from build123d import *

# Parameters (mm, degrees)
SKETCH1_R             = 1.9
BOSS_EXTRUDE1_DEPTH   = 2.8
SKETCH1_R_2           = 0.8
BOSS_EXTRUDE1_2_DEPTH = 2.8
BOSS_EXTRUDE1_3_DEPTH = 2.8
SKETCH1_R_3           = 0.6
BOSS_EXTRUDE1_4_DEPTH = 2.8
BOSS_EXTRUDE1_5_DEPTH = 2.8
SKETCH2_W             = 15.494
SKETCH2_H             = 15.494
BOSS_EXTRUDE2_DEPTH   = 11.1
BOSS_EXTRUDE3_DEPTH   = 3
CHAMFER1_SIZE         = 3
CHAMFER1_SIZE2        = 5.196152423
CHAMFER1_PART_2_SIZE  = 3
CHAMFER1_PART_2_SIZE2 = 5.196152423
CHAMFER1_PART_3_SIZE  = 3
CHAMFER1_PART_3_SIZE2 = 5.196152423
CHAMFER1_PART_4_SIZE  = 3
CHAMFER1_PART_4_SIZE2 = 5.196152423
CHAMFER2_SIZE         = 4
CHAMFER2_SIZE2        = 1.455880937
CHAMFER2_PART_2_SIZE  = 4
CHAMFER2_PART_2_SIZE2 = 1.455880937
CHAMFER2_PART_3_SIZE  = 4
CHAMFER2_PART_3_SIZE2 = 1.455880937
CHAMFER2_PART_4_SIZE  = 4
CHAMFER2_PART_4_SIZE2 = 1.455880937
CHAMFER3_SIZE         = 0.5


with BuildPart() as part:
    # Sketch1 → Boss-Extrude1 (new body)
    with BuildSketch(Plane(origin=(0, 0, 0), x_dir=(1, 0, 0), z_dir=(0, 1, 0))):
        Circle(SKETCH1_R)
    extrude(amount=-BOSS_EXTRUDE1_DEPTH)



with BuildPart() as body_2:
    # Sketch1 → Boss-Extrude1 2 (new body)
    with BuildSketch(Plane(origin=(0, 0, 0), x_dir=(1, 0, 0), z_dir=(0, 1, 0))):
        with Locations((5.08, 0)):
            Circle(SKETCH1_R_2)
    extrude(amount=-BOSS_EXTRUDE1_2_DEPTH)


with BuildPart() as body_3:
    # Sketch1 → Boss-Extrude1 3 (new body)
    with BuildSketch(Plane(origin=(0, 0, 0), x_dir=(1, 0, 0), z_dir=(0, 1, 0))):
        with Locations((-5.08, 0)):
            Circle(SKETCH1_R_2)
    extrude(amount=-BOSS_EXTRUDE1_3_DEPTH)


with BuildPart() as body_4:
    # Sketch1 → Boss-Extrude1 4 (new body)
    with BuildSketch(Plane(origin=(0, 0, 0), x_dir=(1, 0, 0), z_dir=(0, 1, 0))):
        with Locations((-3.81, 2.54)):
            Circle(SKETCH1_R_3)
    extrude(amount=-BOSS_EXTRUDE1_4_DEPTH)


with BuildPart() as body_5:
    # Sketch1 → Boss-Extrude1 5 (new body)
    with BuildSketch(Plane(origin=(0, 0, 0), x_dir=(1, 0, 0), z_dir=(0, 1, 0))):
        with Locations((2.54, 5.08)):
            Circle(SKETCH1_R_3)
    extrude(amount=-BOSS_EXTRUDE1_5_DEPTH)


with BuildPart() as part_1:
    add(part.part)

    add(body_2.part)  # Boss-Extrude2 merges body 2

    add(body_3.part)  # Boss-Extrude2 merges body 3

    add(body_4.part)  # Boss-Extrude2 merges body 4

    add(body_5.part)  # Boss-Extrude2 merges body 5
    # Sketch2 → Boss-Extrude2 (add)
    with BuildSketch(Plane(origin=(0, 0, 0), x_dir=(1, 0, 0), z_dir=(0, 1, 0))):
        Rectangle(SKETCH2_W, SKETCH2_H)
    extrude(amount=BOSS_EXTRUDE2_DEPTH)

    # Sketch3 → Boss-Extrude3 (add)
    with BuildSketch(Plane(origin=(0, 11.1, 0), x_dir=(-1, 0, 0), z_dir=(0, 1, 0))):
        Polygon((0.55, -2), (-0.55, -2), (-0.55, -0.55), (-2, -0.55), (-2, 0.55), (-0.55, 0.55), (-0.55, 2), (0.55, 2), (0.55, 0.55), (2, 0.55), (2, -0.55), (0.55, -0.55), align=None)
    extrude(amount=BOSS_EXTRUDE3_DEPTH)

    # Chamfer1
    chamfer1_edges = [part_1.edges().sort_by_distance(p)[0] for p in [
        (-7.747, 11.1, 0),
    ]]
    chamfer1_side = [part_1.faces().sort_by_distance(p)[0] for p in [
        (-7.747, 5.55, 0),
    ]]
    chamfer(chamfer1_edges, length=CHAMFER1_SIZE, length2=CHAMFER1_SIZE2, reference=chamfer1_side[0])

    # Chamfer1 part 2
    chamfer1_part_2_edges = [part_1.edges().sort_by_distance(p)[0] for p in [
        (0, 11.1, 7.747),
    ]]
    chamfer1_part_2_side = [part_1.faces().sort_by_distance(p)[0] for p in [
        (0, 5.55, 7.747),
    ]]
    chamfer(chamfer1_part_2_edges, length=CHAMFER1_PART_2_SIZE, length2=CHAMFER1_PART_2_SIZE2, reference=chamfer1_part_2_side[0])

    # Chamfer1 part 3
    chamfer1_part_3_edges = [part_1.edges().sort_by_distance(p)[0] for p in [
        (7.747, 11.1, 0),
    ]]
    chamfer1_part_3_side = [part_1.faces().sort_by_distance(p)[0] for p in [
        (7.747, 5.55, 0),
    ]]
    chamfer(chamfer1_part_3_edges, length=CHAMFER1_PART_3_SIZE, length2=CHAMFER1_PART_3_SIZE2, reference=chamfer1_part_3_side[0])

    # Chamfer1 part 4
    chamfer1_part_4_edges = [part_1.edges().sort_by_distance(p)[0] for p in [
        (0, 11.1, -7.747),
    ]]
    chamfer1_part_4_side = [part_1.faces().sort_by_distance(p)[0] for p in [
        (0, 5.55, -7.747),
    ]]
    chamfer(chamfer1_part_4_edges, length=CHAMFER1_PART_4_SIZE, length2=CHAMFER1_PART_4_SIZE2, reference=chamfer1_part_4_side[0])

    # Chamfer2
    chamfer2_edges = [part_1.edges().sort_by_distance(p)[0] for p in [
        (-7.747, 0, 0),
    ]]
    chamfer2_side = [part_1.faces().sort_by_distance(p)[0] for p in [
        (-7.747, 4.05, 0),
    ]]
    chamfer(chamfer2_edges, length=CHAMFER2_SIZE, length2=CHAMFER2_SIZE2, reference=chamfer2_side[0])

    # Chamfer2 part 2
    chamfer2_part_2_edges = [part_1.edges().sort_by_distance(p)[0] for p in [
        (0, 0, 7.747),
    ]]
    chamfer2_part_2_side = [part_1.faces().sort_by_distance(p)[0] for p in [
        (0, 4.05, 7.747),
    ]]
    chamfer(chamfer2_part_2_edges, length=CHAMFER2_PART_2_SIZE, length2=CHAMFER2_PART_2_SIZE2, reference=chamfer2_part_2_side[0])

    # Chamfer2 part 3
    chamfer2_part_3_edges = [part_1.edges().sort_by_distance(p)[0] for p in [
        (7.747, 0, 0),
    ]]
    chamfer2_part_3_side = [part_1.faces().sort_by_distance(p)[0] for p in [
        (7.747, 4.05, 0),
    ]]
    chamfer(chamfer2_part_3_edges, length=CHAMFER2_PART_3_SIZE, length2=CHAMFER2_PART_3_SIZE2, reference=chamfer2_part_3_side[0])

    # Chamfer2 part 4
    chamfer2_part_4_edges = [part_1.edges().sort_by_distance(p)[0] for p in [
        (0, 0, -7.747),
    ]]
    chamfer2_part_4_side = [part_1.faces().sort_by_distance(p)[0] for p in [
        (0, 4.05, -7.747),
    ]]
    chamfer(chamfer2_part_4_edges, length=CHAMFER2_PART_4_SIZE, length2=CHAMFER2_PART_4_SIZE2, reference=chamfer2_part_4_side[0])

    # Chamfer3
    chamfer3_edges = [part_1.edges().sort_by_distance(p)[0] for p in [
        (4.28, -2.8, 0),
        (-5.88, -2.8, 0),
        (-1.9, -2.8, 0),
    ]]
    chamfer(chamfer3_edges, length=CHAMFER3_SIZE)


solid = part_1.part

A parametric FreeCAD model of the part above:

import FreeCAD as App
import Part
import Sketcher

V = App.Vector


def edges_at(feature, points):
    """Names of the edges that pass closest to the given points."""
    edges = feature.Shape.Edges
    near = lambda p: min(range(len(edges)), key=lambda i: edges[i].distToShape(Part.Vertex(*p))[0])
    return sorted({f"Edge{near(p) + 1}" for p in points})


def add_polygon(sketch, points):
    """Adds a closed chain of lines whose ends are joined by coincident constraints."""
    first, n = sketch.GeometryCount, len(points)
    for a, b in zip(points, points[1:] + points[:1]):
        sketch.addGeometry(Part.LineSegment(App.Vector(*a, 0), App.Vector(*b, 0)), False)
    for i in range(n):
        sketch.addConstraint(Sketcher.Constraint("Coincident", first + i, 2, first + (i + 1) % n, 1))

doc = App.newDocument("Part")
body = doc.addObject("PartDesign::Body", "Body")

sketch1 = doc.addObject("Sketcher::SketchObject", "Sketch")
body.addObject(sketch1)
sketch1.AttachmentSupport = (doc.XZ_Plane, [""])
sketch1.MapMode = "FlatFace"
sketch1.addGeometry(Part.Circle(V(0, 0, 0), V(0, 0, 1), 1.9), False)
sketch1.addConstraint(Sketcher.Constraint("Coincident", 0, 3, -1, 1))
sketch1.addConstraint(Sketcher.Constraint("Diameter", 0, 3.8))
pad1 = doc.addObject("PartDesign::Pad", "Pad")
body.addObject(pad1)
pad1.Profile = sketch1
pad1.Length = 2.8
body2 = doc.addObject("PartDesign::Body", "Body001")

sketch2 = doc.addObject("Sketcher::SketchObject", "Sketch001")
body2.addObject(sketch2)
sketch2.AttachmentSupport = (doc.getObject("XZ_Plane001"), [""])
sketch2.MapMode = "FlatFace"
sketch2.addGeometry(Part.Circle(V(5.08, 0, 0), V(0, 0, 1), 0.8), False)
sketch2.addConstraint(Sketcher.Constraint("PointOnObject", 0, 3, -1))
sketch2.addConstraint(Sketcher.Constraint("Diameter", 0, 1.6))
sketch2.addConstraint(Sketcher.Constraint("DistanceX", -1, 1, 0, 3, 5.08))
pad2 = doc.addObject("PartDesign::Pad", "Pad001")
body2.addObject(pad2)
pad2.Profile = sketch2
pad2.Length = 2.8
body3 = doc.addObject("PartDesign::Body", "Body002")

sketch3 = doc.addObject("Sketcher::SketchObject", "Sketch002")
body3.addObject(sketch3)
sketch3.AttachmentSupport = (doc.getObject("XZ_Plane002"), [""])
sketch3.MapMode = "FlatFace"
sketch3.addGeometry(Part.Circle(V(-5.08, 0, 0), V(0, 0, 1), 0.8), False)
sketch3.addConstraint(Sketcher.Constraint("PointOnObject", 0, 3, -1))
sketch3.addConstraint(Sketcher.Constraint("Diameter", 0, 1.6))
sketch3.addConstraint(Sketcher.Constraint("DistanceX", 0, 3, -1, 1, 5.08))
pad3 = doc.addObject("PartDesign::Pad", "Pad002")
body3.addObject(pad3)
pad3.Profile = sketch3
pad3.Length = 2.8
body4 = doc.addObject("PartDesign::Body", "Body003")

sketch4 = doc.addObject("Sketcher::SketchObject", "Sketch003")
body4.addObject(sketch4)
sketch4.AttachmentSupport = (doc.getObject("XZ_Plane003"), [""])
sketch4.MapMode = "FlatFace"
sketch4.addGeometry(Part.Circle(V(-3.81, -2.54, 0), V(0, 0, 1), 0.6), False)
sketch4.addConstraint(Sketcher.Constraint("Diameter", 0, 1.2))
sketch4.addConstraint(Sketcher.Constraint("DistanceX", 0, 3, -1, 1, 3.81))
sketch4.addConstraint(Sketcher.Constraint("DistanceY", 0, 3, -1, 1, 2.54))
pad4 = doc.addObject("PartDesign::Pad", "Pad003")
body4.addObject(pad4)
pad4.Profile = sketch4
pad4.Length = 2.8
body5 = doc.addObject("PartDesign::Body", "Body004")

sketch5 = doc.addObject("Sketcher::SketchObject", "Sketch004")
body5.addObject(sketch5)
sketch5.AttachmentSupport = (doc.getObject("XZ_Plane004"), [""])
sketch5.MapMode = "FlatFace"
sketch5.addGeometry(Part.Circle(V(2.54, -5.08, 0), V(0, 0, 1), 0.6), False)
sketch5.addConstraint(Sketcher.Constraint("Diameter", 0, 1.2))
sketch5.addConstraint(Sketcher.Constraint("DistanceX", -1, 1, 0, 3, 2.54))
sketch5.addConstraint(Sketcher.Constraint("DistanceY", 0, 3, -1, 1, 5.08))
pad5 = doc.addObject("PartDesign::Pad", "Pad004")
body5.addObject(pad5)
pad5.Profile = sketch5
pad5.Length = 2.8
body.AllowCompound = True
doc.recompute()

boolean = doc.addObject("PartDesign::Boolean", "Boolean")
body.addObject(boolean)
boolean.Type = "Fuse"
boolean.addObjects([body2])
doc.recompute()

boolean2 = doc.addObject("PartDesign::Boolean", "Boolean001")
body.addObject(boolean2)
boolean2.Type = "Fuse"
boolean2.addObjects([body3])
doc.recompute()

boolean3 = doc.addObject("PartDesign::Boolean", "Boolean002")
body.addObject(boolean3)
boolean3.Type = "Fuse"
boolean3.addObjects([body4])
doc.recompute()

boolean4 = doc.addObject("PartDesign::Boolean", "Boolean003")
body.addObject(boolean4)
boolean4.Type = "Fuse"
boolean4.addObjects([body5])

sketch6 = doc.addObject("Sketcher::SketchObject", "Sketch005")
body.addObject(sketch6)
sketch6.AttachmentSupport = (doc.XZ_Plane, [""])
sketch6.MapMode = "FlatFace"
add_polygon(sketch6, [(-7.747, -7.747), (-7.747, 7.747), (7.747, 7.747), (7.747, -7.747)])
sketch6.addConstraint(Sketcher.Constraint("Vertical", 0))
sketch6.addConstraint(Sketcher.Constraint("Horizontal", 1))
sketch6.addConstraint(Sketcher.Constraint("Vertical", 2))
sketch6.addConstraint(Sketcher.Constraint("Horizontal", 3))
sketch6.addConstraint(Sketcher.Constraint("Symmetric", 0, 2, 2, 2, -1, 1))
sketch6.addConstraint(Sketcher.Constraint("Equal", 3, 0))
sketch6.addConstraint(Sketcher.Constraint("DistanceX", 1, 1, 1, 2, 15.494))
pad6 = doc.addObject("PartDesign::Pad", "Pad005")
body.addObject(pad6)
pad6.Profile = sketch6
pad6.Length = 11.1
pad6.Reversed = True

sketch7 = doc.addObject("Sketcher::SketchObject", "Sketch006")
body.addObject(sketch7)
sketch7.AttachmentSupport = (doc.XZ_Plane, [""])
sketch7.MapMode = "FlatFace"
sketch7.AttachmentOffset = App.Placement(V(0, 0, -11.1), App.Rotation())
add_polygon(sketch7, [(0.55, -2), (-0.55, -2), (-0.55, -0.55), (-2, -0.55), (-2, 0.55), (-0.55, 0.55), (-0.55, 2), (0.55, 2), (0.55, 0.55), (2, 0.55), (2, -0.55), (0.55, -0.55)])
sketch7.addConstraint(Sketcher.Constraint("Horizontal", 0))
sketch7.addConstraint(Sketcher.Constraint("Vertical", 1))
sketch7.addConstraint(Sketcher.Constraint("Horizontal", 2))
sketch7.addConstraint(Sketcher.Constraint("Vertical", 3))
sketch7.addConstraint(Sketcher.Constraint("Horizontal", 4))
sketch7.addConstraint(Sketcher.Constraint("Vertical", 5))
sketch7.addConstraint(Sketcher.Constraint("Horizontal", 6))
sketch7.addConstraint(Sketcher.Constraint("Vertical", 7))
sketch7.addConstraint(Sketcher.Constraint("Horizontal", 8))
sketch7.addConstraint(Sketcher.Constraint("Vertical", 9))
sketch7.addConstraint(Sketcher.Constraint("Horizontal", 10))
sketch7.addConstraint(Sketcher.Constraint("Vertical", 11))
sketch7.addConstraint(Sketcher.Constraint("Symmetric", 0, 2, 6, 2, -1, 1))
sketch7.addConstraint(Sketcher.Constraint("Symmetric", 2, 2, 8, 2, -1, 1))
sketch7.addConstraint(Sketcher.Constraint("Symmetric", 4, 2, 10, 2, -1, 1))
sketch7.addConstraint(Sketcher.Constraint("Symmetric", 4, 2, 7, 2, -2))
sketch7.addConstraint(Sketcher.Constraint("Equal", 10, 1))
sketch7.addConstraint(Sketcher.Constraint("Equal", 6, 3))
sketch7.addConstraint(Sketcher.Constraint("DistanceX", 0, 2, 0, 1, 1.1))
sketch7.addConstraint(Sketcher.Constraint("DistanceY", 0, 2, -1, 1, 2.0))
pad7 = doc.addObject("PartDesign::Pad", "Pad006")
body.addObject(pad7)
pad7.Profile = sketch7
pad7.Length = 3
pad7.Reversed = True
doc.recompute()

chamfer = doc.addObject("PartDesign::Chamfer", "Chamfer")
body.addObject(chamfer)
chamfer.Base = (pad7, edges_at(pad7, [(-7.747, 11.1, 0)]))
chamfer.ChamferType = "Two distances"
chamfer.Size = 3
chamfer.Size2 = 5.196152
doc.recompute()

chamfer2 = doc.addObject("PartDesign::Chamfer", "Chamfer001")
body.addObject(chamfer2)
chamfer2.Base = (chamfer, edges_at(chamfer, [(2.598, 11.1, 7.747)]))
chamfer2.ChamferType = "Two distances"
chamfer2.Size = 3
chamfer2.Size2 = 5.196152
doc.recompute()

chamfer3 = doc.addObject("PartDesign::Chamfer", "Chamfer002")
body.addObject(chamfer3)
chamfer3.Base = (chamfer2, edges_at(chamfer2, [(7.747, 11.1, -2.598)]))
chamfer3.ChamferType = "Two distances"
chamfer3.Size = 3
chamfer3.Size2 = 5.196152
chamfer3.FlipDirection = True
doc.recompute()

chamfer4 = doc.addObject("PartDesign::Chamfer", "Chamfer003")
body.addObject(chamfer4)
chamfer4.Base = (chamfer3, edges_at(chamfer3, [(0, 11.1, -7.747)]))
chamfer4.ChamferType = "Two distances"
chamfer4.Size = 3
chamfer4.Size2 = 5.196152
chamfer4.FlipDirection = True
doc.recompute()

chamfer5 = doc.addObject("PartDesign::Chamfer", "Chamfer004")
body.addObject(chamfer5)
chamfer5.Base = (chamfer4, edges_at(chamfer4, [(-7.747, 0, 0)]))
chamfer5.ChamferType = "Two distances"
chamfer5.Size = 4
chamfer5.Size2 = 1.455881
doc.recompute()

chamfer6 = doc.addObject("PartDesign::Chamfer", "Chamfer005")
body.addObject(chamfer6)
chamfer6.Base = (chamfer5, edges_at(chamfer5, [(0.728, 0, 7.747)]))
chamfer6.ChamferType = "Two distances"
chamfer6.Size = 4
chamfer6.Size2 = 1.455881
chamfer6.FlipDirection = True
doc.recompute()

chamfer7 = doc.addObject("PartDesign::Chamfer", "Chamfer006")
body.addObject(chamfer7)
chamfer7.Base = (chamfer6, edges_at(chamfer6, [(7.747, 0, -0.728)]))
chamfer7.ChamferType = "Two distances"
chamfer7.Size = 4
chamfer7.Size2 = 1.455881
chamfer7.FlipDirection = True
doc.recompute()

chamfer8 = doc.addObject("PartDesign::Chamfer", "Chamfer007")
body.addObject(chamfer8)
chamfer8.Base = (chamfer7, edges_at(chamfer7, [(0, 0, -7.747)]))
chamfer8.ChamferType = "Two distances"
chamfer8.Size = 4
chamfer8.Size2 = 1.455881
chamfer8.FlipDirection = True
doc.recompute()

chamfer9 = doc.addObject("PartDesign::Chamfer", "Chamfer008")
body.addObject(chamfer9)
chamfer9.Base = (chamfer8, edges_at(chamfer8, [(4.28, -2.8, 0), (-5.88, -2.8, 0), (-1.9, -2.8, 0)]))
chamfer9.Size = 0.5

doc.recompute()
